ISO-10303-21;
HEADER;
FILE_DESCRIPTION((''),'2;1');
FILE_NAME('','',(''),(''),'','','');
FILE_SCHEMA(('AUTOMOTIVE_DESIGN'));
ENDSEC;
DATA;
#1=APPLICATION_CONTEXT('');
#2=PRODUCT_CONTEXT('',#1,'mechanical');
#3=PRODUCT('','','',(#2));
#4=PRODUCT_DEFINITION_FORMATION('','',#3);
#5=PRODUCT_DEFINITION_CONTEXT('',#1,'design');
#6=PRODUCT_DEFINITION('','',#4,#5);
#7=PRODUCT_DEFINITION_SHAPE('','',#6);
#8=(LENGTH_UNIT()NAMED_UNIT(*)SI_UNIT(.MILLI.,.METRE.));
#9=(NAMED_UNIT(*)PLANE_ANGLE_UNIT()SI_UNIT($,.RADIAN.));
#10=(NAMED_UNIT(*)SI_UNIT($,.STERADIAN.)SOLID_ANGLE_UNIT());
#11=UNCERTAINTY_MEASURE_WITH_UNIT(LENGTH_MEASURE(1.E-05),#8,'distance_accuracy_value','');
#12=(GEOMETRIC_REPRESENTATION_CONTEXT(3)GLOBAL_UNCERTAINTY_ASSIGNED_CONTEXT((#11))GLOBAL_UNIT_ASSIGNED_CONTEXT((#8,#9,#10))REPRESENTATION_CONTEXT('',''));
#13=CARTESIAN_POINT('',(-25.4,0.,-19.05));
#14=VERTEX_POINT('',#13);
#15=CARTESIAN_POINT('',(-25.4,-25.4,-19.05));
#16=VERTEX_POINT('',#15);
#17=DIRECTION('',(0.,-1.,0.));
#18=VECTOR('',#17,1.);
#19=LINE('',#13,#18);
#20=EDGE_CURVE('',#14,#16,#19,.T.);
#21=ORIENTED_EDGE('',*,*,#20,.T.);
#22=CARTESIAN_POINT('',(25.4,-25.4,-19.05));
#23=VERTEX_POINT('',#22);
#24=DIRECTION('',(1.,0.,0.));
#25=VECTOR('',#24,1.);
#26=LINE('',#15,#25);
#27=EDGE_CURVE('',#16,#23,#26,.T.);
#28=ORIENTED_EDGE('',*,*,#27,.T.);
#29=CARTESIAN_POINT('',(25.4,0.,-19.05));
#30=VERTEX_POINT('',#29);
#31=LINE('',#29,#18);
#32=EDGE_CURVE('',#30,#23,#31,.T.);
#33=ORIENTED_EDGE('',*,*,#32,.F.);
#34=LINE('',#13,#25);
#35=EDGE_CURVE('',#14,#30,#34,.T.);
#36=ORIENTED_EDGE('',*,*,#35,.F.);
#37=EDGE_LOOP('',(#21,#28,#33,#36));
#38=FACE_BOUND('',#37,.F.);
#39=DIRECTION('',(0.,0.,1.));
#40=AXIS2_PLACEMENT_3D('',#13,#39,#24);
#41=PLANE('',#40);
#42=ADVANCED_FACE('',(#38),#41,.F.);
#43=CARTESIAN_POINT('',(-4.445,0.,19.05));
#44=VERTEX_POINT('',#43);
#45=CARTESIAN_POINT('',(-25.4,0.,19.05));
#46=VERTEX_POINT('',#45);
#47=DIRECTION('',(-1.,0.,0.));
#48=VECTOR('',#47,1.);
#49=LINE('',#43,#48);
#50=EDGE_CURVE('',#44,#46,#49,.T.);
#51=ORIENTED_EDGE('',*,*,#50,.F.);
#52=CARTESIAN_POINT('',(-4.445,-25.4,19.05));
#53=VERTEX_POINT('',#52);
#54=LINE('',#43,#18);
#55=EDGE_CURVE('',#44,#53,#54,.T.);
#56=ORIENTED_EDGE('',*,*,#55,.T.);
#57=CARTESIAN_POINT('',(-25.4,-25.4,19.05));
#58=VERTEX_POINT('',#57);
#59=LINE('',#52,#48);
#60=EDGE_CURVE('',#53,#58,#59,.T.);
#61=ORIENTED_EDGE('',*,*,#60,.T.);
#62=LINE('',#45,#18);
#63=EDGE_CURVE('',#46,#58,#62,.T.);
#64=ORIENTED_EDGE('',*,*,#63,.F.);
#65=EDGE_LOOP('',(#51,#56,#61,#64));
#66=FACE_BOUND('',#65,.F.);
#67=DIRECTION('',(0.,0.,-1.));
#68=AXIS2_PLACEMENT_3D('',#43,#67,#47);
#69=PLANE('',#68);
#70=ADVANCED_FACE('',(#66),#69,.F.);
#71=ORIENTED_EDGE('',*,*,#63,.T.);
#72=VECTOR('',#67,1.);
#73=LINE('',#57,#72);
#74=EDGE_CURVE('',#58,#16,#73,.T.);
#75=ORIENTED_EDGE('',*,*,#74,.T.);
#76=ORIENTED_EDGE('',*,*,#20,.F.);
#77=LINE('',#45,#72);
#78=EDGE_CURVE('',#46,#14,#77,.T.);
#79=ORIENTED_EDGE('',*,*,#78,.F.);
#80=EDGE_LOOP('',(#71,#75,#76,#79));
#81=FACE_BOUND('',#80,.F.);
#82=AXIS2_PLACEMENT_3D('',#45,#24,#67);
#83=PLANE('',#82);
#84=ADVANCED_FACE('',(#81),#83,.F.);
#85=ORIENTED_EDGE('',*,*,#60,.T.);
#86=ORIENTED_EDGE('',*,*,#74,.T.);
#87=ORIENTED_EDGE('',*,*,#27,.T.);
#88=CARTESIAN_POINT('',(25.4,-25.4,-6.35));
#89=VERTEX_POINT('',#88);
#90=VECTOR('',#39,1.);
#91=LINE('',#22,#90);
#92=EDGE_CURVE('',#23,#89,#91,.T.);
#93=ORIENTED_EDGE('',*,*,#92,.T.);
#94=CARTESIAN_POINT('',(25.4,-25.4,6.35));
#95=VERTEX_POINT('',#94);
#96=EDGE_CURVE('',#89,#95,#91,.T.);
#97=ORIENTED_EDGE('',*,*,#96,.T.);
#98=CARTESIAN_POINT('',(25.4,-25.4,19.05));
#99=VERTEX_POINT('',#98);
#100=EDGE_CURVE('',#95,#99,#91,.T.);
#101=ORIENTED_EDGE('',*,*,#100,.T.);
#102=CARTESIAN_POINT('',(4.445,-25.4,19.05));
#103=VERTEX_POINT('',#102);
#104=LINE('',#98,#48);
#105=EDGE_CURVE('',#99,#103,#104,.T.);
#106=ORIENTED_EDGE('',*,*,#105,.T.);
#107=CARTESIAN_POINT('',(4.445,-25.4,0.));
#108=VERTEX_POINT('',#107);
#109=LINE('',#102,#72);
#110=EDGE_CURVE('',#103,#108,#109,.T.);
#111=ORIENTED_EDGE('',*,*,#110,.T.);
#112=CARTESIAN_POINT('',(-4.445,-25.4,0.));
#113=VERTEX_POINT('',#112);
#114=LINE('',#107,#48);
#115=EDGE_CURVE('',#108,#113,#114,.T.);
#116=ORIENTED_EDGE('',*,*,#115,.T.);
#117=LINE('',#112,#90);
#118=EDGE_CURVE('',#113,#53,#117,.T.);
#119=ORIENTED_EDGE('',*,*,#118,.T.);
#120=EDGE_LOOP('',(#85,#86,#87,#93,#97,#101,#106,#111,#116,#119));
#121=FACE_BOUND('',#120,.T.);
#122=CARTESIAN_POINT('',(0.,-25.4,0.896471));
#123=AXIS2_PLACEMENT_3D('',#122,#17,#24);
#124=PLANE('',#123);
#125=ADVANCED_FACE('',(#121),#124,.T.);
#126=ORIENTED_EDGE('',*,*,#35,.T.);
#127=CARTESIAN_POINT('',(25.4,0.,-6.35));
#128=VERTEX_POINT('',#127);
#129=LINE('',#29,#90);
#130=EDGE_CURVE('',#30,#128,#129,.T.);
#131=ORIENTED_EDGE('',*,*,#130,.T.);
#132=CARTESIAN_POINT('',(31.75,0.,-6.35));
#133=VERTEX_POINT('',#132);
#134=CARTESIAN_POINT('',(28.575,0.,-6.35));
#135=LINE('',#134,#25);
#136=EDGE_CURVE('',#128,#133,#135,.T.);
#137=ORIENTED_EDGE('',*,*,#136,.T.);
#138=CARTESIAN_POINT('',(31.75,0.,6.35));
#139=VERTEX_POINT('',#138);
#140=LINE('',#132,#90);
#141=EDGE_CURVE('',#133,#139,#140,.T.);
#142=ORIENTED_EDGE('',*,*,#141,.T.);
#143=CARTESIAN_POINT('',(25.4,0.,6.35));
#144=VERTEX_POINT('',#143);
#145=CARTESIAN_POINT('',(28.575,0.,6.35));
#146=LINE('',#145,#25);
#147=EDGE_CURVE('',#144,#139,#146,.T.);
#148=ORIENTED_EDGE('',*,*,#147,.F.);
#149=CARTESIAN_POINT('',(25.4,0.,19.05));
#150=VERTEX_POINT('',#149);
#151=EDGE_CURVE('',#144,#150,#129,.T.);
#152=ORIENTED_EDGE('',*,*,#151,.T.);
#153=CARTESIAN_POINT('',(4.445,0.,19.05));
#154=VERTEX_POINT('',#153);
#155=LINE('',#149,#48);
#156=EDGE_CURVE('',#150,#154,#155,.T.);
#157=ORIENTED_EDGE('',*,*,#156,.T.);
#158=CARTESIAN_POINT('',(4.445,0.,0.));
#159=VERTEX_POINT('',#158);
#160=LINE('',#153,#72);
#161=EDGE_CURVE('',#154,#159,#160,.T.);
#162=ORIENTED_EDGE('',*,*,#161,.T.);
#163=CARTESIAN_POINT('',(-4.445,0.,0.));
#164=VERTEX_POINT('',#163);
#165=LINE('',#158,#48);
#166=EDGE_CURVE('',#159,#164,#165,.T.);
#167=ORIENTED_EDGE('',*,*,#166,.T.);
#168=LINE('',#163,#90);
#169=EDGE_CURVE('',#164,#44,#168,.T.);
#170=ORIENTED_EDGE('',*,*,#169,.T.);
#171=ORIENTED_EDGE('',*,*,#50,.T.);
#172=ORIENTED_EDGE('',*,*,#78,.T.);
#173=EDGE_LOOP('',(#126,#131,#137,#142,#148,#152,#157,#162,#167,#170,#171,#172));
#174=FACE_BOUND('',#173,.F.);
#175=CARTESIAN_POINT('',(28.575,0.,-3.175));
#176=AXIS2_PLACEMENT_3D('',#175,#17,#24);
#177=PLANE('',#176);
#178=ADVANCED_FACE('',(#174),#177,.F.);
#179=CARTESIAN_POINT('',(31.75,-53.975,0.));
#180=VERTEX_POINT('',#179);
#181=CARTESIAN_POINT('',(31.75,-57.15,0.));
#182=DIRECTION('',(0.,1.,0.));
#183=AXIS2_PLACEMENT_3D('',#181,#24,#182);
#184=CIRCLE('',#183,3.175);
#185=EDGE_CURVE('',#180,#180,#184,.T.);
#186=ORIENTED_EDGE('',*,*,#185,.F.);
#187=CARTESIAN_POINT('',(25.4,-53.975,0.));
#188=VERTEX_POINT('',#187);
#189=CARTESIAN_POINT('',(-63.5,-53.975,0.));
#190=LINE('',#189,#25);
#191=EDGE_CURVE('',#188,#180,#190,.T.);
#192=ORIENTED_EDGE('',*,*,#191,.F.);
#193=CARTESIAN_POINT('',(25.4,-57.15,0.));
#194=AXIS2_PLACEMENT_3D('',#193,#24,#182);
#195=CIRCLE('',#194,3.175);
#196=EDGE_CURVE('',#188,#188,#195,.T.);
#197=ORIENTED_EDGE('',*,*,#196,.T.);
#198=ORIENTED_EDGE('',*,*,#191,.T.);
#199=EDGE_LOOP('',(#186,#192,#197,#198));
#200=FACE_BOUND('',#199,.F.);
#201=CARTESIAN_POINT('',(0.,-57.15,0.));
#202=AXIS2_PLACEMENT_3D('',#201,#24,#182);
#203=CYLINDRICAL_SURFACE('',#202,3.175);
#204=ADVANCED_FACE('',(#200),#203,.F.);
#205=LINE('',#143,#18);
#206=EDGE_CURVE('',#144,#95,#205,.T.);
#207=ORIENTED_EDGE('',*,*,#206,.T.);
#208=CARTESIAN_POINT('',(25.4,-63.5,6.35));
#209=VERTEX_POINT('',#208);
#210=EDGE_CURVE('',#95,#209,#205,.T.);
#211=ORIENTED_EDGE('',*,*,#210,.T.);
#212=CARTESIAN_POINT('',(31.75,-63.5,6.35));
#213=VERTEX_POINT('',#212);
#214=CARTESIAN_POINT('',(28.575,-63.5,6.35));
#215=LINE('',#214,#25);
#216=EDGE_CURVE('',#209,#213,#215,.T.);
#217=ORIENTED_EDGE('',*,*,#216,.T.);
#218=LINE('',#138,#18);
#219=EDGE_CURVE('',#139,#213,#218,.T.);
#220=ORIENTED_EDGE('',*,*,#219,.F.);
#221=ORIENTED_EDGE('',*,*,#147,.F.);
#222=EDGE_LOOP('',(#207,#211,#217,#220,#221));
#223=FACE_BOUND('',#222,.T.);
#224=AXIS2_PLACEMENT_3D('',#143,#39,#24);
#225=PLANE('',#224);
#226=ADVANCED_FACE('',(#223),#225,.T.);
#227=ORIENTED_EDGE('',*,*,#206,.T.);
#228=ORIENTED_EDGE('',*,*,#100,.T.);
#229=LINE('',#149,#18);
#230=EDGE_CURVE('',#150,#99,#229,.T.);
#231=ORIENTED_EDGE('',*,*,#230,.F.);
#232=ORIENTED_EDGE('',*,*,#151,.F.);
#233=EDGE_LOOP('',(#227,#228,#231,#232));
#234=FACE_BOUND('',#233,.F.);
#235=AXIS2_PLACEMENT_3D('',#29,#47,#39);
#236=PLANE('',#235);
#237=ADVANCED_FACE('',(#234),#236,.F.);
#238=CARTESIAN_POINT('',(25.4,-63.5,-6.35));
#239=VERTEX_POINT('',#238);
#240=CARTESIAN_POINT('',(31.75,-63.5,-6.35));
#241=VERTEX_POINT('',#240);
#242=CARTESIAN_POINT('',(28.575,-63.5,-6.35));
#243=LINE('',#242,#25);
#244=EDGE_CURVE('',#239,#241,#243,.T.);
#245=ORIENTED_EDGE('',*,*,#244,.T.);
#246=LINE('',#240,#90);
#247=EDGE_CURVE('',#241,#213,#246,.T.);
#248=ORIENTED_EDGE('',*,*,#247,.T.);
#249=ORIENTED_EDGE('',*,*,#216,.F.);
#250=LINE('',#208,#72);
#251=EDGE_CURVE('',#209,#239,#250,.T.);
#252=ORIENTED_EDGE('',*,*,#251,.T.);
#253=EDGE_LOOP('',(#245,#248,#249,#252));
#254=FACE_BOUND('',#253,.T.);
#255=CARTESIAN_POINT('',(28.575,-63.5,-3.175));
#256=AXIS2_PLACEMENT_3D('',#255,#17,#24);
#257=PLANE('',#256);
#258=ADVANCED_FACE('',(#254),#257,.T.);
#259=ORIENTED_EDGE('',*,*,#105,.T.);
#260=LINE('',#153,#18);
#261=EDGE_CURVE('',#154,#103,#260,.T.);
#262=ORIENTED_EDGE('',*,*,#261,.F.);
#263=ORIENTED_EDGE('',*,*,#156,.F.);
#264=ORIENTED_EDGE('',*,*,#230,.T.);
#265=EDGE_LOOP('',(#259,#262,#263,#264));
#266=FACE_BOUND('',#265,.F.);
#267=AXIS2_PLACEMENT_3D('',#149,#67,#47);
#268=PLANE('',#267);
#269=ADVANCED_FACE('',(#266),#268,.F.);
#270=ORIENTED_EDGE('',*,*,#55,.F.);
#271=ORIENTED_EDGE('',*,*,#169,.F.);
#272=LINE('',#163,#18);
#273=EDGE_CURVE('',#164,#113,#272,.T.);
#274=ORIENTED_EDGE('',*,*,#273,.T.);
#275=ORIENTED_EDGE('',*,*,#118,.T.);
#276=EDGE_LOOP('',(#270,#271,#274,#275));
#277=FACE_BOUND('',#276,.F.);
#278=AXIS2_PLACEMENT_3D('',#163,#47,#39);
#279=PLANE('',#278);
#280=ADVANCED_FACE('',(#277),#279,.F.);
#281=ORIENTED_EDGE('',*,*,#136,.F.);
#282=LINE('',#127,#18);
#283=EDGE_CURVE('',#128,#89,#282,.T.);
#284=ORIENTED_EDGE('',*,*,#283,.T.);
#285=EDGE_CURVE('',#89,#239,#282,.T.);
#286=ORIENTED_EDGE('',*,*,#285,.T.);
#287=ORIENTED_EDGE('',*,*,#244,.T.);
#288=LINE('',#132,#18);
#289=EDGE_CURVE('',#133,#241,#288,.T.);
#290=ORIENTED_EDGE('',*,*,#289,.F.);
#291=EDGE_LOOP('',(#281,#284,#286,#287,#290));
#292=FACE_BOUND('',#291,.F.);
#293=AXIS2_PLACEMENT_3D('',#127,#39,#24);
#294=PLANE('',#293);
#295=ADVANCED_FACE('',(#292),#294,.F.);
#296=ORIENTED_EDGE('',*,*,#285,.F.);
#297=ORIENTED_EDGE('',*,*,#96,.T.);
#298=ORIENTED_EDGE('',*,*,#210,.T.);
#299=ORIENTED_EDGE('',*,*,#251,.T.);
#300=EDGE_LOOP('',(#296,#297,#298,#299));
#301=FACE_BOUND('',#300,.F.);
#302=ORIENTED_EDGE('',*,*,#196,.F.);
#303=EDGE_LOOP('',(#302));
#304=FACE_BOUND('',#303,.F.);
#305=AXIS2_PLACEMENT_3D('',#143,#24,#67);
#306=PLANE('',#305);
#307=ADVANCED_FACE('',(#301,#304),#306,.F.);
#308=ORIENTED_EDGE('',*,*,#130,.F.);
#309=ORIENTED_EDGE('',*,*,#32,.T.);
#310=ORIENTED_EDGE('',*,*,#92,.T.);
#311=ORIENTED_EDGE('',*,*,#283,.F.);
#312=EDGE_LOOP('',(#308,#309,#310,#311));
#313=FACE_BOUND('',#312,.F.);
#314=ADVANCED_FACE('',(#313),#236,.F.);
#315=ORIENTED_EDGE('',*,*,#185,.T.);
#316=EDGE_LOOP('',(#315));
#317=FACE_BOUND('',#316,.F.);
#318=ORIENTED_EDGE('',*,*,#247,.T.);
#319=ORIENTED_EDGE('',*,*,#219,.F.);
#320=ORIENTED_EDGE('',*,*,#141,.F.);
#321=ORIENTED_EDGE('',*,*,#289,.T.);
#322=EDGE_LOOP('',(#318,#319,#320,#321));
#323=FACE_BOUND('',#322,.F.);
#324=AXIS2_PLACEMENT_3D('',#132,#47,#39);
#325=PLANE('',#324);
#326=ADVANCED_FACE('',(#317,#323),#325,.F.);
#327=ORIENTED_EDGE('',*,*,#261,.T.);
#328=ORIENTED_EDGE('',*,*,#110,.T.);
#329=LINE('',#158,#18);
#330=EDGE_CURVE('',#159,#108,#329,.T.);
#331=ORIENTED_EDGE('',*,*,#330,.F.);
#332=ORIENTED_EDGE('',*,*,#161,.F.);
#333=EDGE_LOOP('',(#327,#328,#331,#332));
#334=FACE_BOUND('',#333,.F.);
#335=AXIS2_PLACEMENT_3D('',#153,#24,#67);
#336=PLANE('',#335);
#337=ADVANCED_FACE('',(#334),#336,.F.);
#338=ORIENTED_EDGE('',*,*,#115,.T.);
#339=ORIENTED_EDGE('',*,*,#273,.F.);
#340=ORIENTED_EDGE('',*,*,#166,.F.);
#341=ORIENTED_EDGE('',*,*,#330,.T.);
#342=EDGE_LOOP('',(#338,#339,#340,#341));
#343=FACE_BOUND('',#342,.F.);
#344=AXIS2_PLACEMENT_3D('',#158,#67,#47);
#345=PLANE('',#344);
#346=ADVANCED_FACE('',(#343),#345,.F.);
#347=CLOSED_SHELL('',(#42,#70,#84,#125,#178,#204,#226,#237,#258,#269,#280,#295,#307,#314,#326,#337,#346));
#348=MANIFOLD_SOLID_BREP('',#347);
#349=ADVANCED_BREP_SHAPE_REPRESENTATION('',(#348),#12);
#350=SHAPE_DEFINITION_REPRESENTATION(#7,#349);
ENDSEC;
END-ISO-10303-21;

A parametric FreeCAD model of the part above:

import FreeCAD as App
import Part
import Sketcher
Q = App.Units.Quantity


def add_polygon(sketch, points):
    """Adds a closed chain of lines whose ends are joined by coincident constraints."""
    first, n = sketch.GeometryCount, len(points)
    for a, b in zip(points, points[1:] + points[:1]):
        sketch.addGeometry(Part.LineSegment(App.Vector(*a, 0), App.Vector(*b, 0)), False)
    for i in range(n):
        sketch.addConstraint(Sketcher.Constraint("Coincident", first + i, 2, first + (i + 1) % n, 1))

doc = App.newDocument("Part")
body = doc.addObject("PartDesign::Body", "Body")

# Sketch on XZ plane
sketch1 = body.newObject("Sketcher::SketchObject", "Sketch")
sketch1.AttachmentSupport = (doc.getObject("XZ_Plane"), [""])
sketch1.MapMode = "FlatFace"
add_polygon(sketch1, [(-4, 19), (-25, 19), (-25, -19), (25, -19), (25, 19), (4, 19), (4, 0), (-4, 0)])  # lines 0-7
sketch1.addConstraint(Sketcher.Constraint("Horizontal", 0))
sketch1.addConstraint(Sketcher.Constraint("Vertical", 1))
sketch1.addConstraint(Sketcher.Constraint("Horizontal", 2))
sketch1.addConstraint(Sketcher.Constraint("Vertical", 3))
sketch1.addConstraint(Sketcher.Constraint("Horizontal", 4))
sketch1.addConstraint(Sketcher.Constraint("Vertical", 5))
sketch1.addConstraint(Sketcher.Constraint("Horizontal", 6))
sketch1.addConstraint(Sketcher.Constraint("Vertical", 7))
sketch1.addConstraint(Sketcher.Constraint("Symmetric", 0, 2, 2, 2, -1, 1))
sketch1.addConstraint(Sketcher.Constraint("Symmetric", 5, 2, 6, 2, -1, 1))
sketch1.addConstraint(Sketcher.Constraint("Horizontal", 0, 2, 3, 2))
sketch1.addConstraint(Sketcher.Constraint("DistanceX", 2, 1, 2, 2, Q("2 in")))
sketch1.addConstraint(Sketcher.Constraint("DistanceY", 1, 2, 1, 1, Q("1.5 in")))
sketch1.addConstraint(Sketcher.Constraint("DistanceX", 6, 2, 6, 1, Q("0.35 in")))
pad1 = body.newObject("PartDesign::Pad", "Pad")
pad1.Profile = sketch1
pad1.Length = Q("1 in")

# Sketch on XZ plane
sketch2 = body.newObject("Sketcher::SketchObject", "Sketch001")
sketch2.AttachmentSupport = (doc.getObject("XZ_Plane"), [""])
sketch2.MapMode = "FlatFace"
add_polygon(sketch2, [(25, -6), (32, -6), (32, 6), (25, 6)])  # lines 0-3
sketch2.addConstraint(Sketcher.Constraint("Horizontal", 0))
sketch2.addConstraint(Sketcher.Constraint("Vertical", 1))
sketch2.addConstraint(Sketcher.Constraint("Horizontal", 2))
sketch2.addConstraint(Sketcher.Constraint("Vertical", 3))
sketch2.addConstraint(Sketcher.Constraint("DistanceY", 1, 1, 1, 2, Q("0.5 in")))
sketch2.addConstraint(Sketcher.Constraint("DistanceX", -1, 1, 2, 2, Q("1 in")))
sketch2.addConstraint(Sketcher.Constraint("DistanceX", 0, 1, 0, 2, Q("0.25 in")))
sketch2.addConstraint(Sketcher.Constraint("DistanceY", 0, 2, -1, 1, Q("0.25 in")))
pad2 = body.newObject("PartDesign::Pad", "Pad001")
pad2.Profile = sketch2
pad2.Length = Q("2.5 in")

# Sketch on YZ plane
sketch3 = body.newObject("Sketcher::SketchObject", "Sketch002")
sketch3.AttachmentSupport = (doc.getObject("YZ_Plane"), [""])
sketch3.MapMode = "FlatFace"
sketch3.addGeometry(Part.Circle(App.Vector(-57.1, 0, 0), App.Vector(0, 0, 1), 3.2), False)
sketch3.addConstraint(Sketcher.Constraint("PointOnObject", 0, 3, -1))
sketch3.addConstraint(Sketcher.Constraint("Diameter", 0, Q("0.25 in")))
sketch3.addConstraint(Sketcher.Constraint("DistanceX", 0, 3, -1, 1, Q("2.25 in")))
pocket1 = body.newObject("PartDesign::Pocket", "Pocket")
pocket1.Profile = sketch3
pocket1.Length = Q("5 in")
pocket1.Midplane = True

doc.recompute()
